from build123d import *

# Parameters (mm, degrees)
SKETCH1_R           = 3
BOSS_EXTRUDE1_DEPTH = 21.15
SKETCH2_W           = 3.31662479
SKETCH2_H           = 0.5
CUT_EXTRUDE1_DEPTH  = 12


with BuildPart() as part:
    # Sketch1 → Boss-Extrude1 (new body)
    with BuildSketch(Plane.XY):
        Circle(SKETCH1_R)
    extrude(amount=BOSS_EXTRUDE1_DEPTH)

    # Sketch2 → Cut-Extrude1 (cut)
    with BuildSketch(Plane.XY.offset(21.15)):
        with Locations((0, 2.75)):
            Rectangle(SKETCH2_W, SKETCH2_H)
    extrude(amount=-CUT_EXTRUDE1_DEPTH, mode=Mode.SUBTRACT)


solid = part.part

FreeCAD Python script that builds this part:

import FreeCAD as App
import Part
import Sketcher
from FreeCAD import Vector
Q = App.Units.Quantity


def add_polygon(sketch, points):
    """Adds a closed chain of lines whose ends are joined by coincident constraints."""
    first, n = sketch.GeometryCount, len(points)
    for a, b in zip(points, points[1:] + points[:1]):
        sketch.addGeometry(Part.LineSegment(App.Vector(*a, 0), App.Vector(*b, 0)), False)
    for i in range(n):
        sketch.addConstraint(Sketcher.Constraint("Coincident", first + i, 2, first + (i + 1) % n, 1))

doc = App.newDocument("Part")
body = doc.addObject("PartDesign::Body", "Body")

sketch1 = body.newObject("Sketcher::SketchObject", "Sketch")
sketch1.AttachmentSupport = (doc.getObject("XY_Plane"), [""])
sketch1.MapMode = "FlatFace"
sketch1.addGeometry(Part.Circle(Vector(0, 0, 0), Vector(0, 0, 1), 3), False)
sketch1.addConstraint(Sketcher.Constraint("Coincident", 0, 3, -1, 1))
sketch1.addConstraint(Sketcher.Constraint("Diameter", 0, Q("6 mm")))
pad1 = body.newObject("PartDesign::Pad", "Pad")
pad1.Profile = sketch1
pad1.Length = 21.15

sketch2 = body.newObject("Sketcher::SketchObject", "Sketch001")
sketch2.AttachmentSupport = (doc.getObject("XY_Plane"), [""])
sketch2.MapMode = "FlatFace"
sketch2.AttachmentOffset = App.Placement(Vector(0, 0, 21.15), App.Rotation())
add_polygon(sketch2, [(-1.7, 3), (-1.7, 2.5), (1.7, 2.5), (1.7, 3)])
sketch2.addConstraint(Sketcher.Constraint("Vertical", 0))
sketch2.addConstraint(Sketcher.Constraint("Horizontal", 1))
sketch2.addConstraint(Sketcher.Constraint("Vertical", 2))
sketch2.addConstraint(Sketcher.Constraint("Horizontal", 3))
sketch2.addConstraint(Sketcher.Constraint("DistanceY", 0, 2, 0, 1, Q("0.5 mm")))
sketch2.addConstraint(Sketcher.Constraint("DistanceY", -1, 1, 2, 2, Q("3 mm")))
sketch2.addConstraint(Sketcher.Constraint("DistanceX", 1, 1, 1, 2, Q("3.316625 mm")))
sketch2.addConstraint(Sketcher.Constraint("DistanceX", 0, 2, -1, 1, Q("1.658312 mm")))
pocket1 = body.newObject("PartDesign::Pocket", "Pocket")
pocket1.Profile = sketch2
pocket1.Length = 12

doc.recompute()
